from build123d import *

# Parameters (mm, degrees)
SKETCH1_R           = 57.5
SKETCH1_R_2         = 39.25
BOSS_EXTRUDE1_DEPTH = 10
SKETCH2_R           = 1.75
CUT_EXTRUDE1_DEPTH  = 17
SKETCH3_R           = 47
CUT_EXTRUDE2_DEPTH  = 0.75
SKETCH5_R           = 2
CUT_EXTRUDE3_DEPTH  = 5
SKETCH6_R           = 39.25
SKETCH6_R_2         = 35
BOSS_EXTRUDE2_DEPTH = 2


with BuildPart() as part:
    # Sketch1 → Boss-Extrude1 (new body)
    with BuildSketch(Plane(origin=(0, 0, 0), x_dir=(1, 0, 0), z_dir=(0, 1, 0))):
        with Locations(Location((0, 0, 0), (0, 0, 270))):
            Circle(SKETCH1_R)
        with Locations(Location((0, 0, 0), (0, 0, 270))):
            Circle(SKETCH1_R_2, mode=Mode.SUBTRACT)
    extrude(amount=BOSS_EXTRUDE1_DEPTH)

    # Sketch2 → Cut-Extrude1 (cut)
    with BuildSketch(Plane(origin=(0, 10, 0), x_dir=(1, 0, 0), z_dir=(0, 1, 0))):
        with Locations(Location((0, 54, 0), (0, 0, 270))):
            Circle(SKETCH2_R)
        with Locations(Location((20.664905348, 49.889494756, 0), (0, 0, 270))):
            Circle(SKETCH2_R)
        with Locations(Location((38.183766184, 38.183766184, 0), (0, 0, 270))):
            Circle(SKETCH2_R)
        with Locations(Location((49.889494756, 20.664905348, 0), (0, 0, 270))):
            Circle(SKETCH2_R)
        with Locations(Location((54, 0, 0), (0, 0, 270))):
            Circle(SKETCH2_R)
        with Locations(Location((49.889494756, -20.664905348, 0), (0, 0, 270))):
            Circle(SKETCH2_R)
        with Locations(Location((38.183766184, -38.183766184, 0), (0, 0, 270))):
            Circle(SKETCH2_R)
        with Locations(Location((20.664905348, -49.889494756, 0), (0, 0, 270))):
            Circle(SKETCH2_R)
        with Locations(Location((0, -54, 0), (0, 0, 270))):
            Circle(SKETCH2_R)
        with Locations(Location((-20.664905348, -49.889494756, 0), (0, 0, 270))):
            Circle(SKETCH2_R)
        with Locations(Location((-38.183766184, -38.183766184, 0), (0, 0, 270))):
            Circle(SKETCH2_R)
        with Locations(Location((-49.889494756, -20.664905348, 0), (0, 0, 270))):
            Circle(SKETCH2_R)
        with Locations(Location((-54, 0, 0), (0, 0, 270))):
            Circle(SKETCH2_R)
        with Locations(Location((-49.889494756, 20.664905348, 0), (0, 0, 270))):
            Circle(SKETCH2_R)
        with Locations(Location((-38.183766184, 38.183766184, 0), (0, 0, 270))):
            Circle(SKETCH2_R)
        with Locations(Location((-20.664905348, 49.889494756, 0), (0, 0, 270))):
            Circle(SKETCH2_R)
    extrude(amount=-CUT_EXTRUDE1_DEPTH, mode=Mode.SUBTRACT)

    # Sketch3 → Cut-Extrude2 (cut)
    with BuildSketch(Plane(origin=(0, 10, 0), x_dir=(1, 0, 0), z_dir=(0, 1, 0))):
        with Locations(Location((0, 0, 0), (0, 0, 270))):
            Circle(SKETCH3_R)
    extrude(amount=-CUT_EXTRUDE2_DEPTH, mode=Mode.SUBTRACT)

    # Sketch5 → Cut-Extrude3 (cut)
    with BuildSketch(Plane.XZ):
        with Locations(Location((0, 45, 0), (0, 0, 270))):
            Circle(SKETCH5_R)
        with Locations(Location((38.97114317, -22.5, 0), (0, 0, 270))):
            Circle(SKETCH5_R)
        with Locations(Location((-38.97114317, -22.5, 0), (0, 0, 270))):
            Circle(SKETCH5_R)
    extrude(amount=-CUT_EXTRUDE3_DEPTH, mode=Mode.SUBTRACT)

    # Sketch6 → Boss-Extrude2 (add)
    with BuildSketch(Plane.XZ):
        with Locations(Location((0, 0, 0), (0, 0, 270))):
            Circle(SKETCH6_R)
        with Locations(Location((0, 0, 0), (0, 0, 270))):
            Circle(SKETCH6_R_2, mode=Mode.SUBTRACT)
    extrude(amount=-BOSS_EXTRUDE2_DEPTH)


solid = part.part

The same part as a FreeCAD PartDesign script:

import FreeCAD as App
import Part
import Sketcher

V = App.Vector

doc = App.newDocument("Part")
body = doc.addObject("PartDesign::Body", "Body")

sketch1 = body.newObject("Sketcher::SketchObject", "Sketch")
sketch1.AttachmentSupport = (doc.getObject("XZ_Plane"), [""])
sketch1.MapMode = "FlatFace"
sketch1.addGeometry([
    Part.Circle(V(0, 0, 0), V(0, 0, 1), 57.5),
    Part.Circle(V(0, 0, 0), V(0, 0, 1), 39.25),
], False)
sketch1.addConstraint([
    Sketcher.Constraint("Coincident", 0, 3, -1, 1),
    Sketcher.Constraint("Coincident", 1, 3, -1, 1),
    Sketcher.Constraint("Diameter", 0, 115.0),
    Sketcher.Constraint("Diameter", 1, 78.5),
])
pad1 = body.newObject("PartDesign::Pad", "Pad")
pad1.Profile = sketch1
pad1.Length = 10
pad1.Reversed = True

sketch2 = body.newObject("Sketcher::SketchObject", "Sketch001")
sketch2.AttachmentSupport = (doc.getObject("XZ_Plane"), [""])
sketch2.MapMode = "FlatFace"
sketch2.AttachmentOffset = App.Placement(V(0, 0, -10), App.Rotation())
sketch2.addGeometry([
    Part.Circle(V(0, -54, 0), V(0, 0, 1), 1.75),
    Part.Circle(V(20.664905, -49.889495, 0), V(0, 0, 1), 1.75),
    Part.Circle(V(38.183766, -38.183766, 0), V(0, 0, 1), 1.75),
    Part.Circle(V(49.889495, -20.664905, 0), V(0, 0, 1), 1.75),
    Part.Circle(V(54, 0, 0), V(0, 0, 1), 1.75),
    Part.Circle(V(49.889495, 20.664905, 0), V(0, 0, 1), 1.75),
    Part.Circle(V(38.183766, 38.183766, 0), V(0, 0, 1), 1.75),
    Part.Circle(V(20.664905, 49.889495, 0), V(0, 0, 1), 1.75),
    Part.Circle(V(0, 54, 0), V(0, 0, 1), 1.75),
    Part.Circle(V(-20.664905, 49.889495, 0), V(0, 0, 1), 1.75),
    Part.Circle(V(-38.183766, 38.183766, 0), V(0, 0, 1), 1.75),
    Part.Circle(V(-49.889495, 20.664905, 0), V(0, 0, 1), 1.75),
    Part.Circle(V(-54, 0, 0), V(0, 0, 1), 1.75),
    Part.Circle(V(-49.889495, -20.664905, 0), V(0, 0, 1), 1.75),
    Part.Circle(V(-38.183766, -38.183766, 0), V(0, 0, 1), 1.75),
    Part.Circle(V(-20.664905, -49.889495, 0), V(0, 0, 1), 1.75),
], False)
sketch2.addConstraint([
    Sketcher.Constraint("Equal", 0, 1),
    Sketcher.Constraint("Equal", 1, 2),
    Sketcher.Constraint("Equal", 2, 3),
    Sketcher.Constraint("Equal", 3, 4),
    Sketcher.Constraint("Equal", 4, 5),
    Sketcher.Constraint("Equal", 5, 6),
    Sketcher.Constraint("Equal", 6, 7),
    Sketcher.Constraint("Equal", 7, 8),
    Sketcher.Constraint("Equal", 8, 9),
    Sketcher.Constraint("Equal", 9, 10),
    Sketcher.Constraint("Equal", 10, 11),
    Sketcher.Constraint("Equal", 11, 12),
    Sketcher.Constraint("Equal", 12, 13),
    Sketcher.Constraint("Equal", 13, 14),
    Sketcher.Constraint("Equal", 14, 15),
    Sketcher.Constraint("Symmetric", 0, 3, 8, 3, -1, 1),
    Sketcher.Constraint("Symmetric", 1, 3, 9, 3, -1, 1),
    Sketcher.Constraint("Symmetric", 2, 3, 10, 3, -1, 1),
    Sketcher.Constraint("Symmetric", 3, 3, 11, 3, -1, 1),
    Sketcher.Constraint("Symmetric", 4, 3, 12, 3, -1, 1),
    Sketcher.Constraint("Symmetric", 5, 3, 13, 3, -1, 1),
    Sketcher.Constraint("Symmetric", 6, 3, 14, 3, -1, 1),
    Sketcher.Constraint("Symmetric", 7, 3, 15, 3, -1, 1),
    Sketcher.Constraint("Symmetric", 7, 3, 9, 3, -2),
    Sketcher.Constraint("Symmetric", 6, 3, 10, 3, -2),
    Sketcher.Constraint("Symmetric", 5, 3, 11, 3, -2),
    Sketcher.Constraint("PointOnObject", 0, 3, -2),
    Sketcher.Constraint("PointOnObject", 4, 3, -1),
    Sketcher.Constraint("Diameter", 0, 3.5),
    Sketcher.Constraint("DistanceY", 0, 3, -1, 1, 54.0),
    Sketcher.Constraint("DistanceX", -1, 1, 4, 3, 54.0),
    Sketcher.Constraint("DistanceY", 1, 3, 5, 3, 70.5544),
    Sketcher.Constraint("DistanceX", 9, 3, 5, 3, 70.5544),
    Sketcher.Constraint("DistanceX", 1, 3, 2, 3, 17.518861),
    Sketcher.Constraint("DistanceY", 1, 3, 2, 3, 11.705729),
    Sketcher.Constraint("DistanceX", 2, 3, 3, 3, 11.705729),
    Sketcher.Constraint("DistanceY", 2, 3, 3, 3, 17.518861),
])
pocket1 = body.newObject("PartDesign::Pocket", "Pocket")
pocket1.Profile = sketch2
pocket1.Length = 17
pocket1.Reversed = True

sketch3 = body.newObject("Sketcher::SketchObject", "Sketch002")
sketch3.AttachmentSupport = (doc.getObject("XZ_Plane"), [""])
sketch3.MapMode = "FlatFace"
sketch3.AttachmentOffset = App.Placement(V(0, 0, -10), App.Rotation())
sketch3.addGeometry(Part.Circle(V(0, 0, 0), V(0, 0, 1), 47), False)
sketch3.addConstraint([
    Sketcher.Constraint("Coincident", 0, 3, -1, 1),
    Sketcher.Constraint("Diameter", 0, 94.0),
])
pocket2 = body.newObject("PartDesign::Pocket", "Pocket001")
pocket2.Profile = sketch3
pocket2.Length = 0.75
pocket2.Reversed = True

sketch4 = body.newObject("Sketcher::SketchObject", "Sketch003")
sketch4.AttachmentSupport = (doc.getObject("XZ_Plane"), [""])
sketch4.MapMode = "FlatFace"
sketch4.addGeometry([
    Part.Circle(V(0, 45, 0), V(0, 0, 1), 2),
    Part.Circle(V(38.971143, -22.5, 0), V(0, 0, 1), 2),
    Part.Circle(V(-38.971143, -22.5, 0), V(0, 0, 1), 2),
], False)
sketch4.addConstraint([
    Sketcher.Constraint("Equal", 0, 1),
    Sketcher.Constraint("Equal", 1, 2),
    Sketcher.Constraint("Symmetric", 1, 3, 2, 3, -2),
    Sketcher.Constraint("PointOnObject", 0, 3, -2),
    Sketcher.Constraint("Diameter", 0, 4.0),
    Sketcher.Constraint("DistanceY", -1, 1, 0, 3, 45.0),
    Sketcher.Constraint("DistanceY", 1, 3, -1, 1, 22.5),
    Sketcher.Constraint("DistanceX", -1, 1, 1, 3, 38.971143),
])
pocket3 = body.newObject("PartDesign::Pocket", "Pocket002")
pocket3.Profile = sketch4
pocket3.Length = 5

sketch5 = body.newObject("Sketcher::SketchObject", "Sketch004")
sketch5.AttachmentSupport = (doc.getObject("XZ_Plane"), [""])
sketch5.MapMode = "FlatFace"
sketch5.addGeometry([
    Part.Circle(V(0, 0, 0), V(0, 0, 1), 39.25),
    Part.Circle(V(0, 0, 0), V(0, 0, 1), 35),
], False)
sketch5.addConstraint([
    Sketcher.Constraint("Coincident", 0, 3, -1, 1),
    Sketcher.Constraint("Coincident", 1, 3, -1, 1),
    Sketcher.Constraint("Diameter", 1, 70.0),
    Sketcher.Constraint("Diameter", 0, 78.5),
])
pad2 = body.newObject("PartDesign::Pad", "Pad001")
pad2.Profile = sketch5
pad2.Length = 2
pad2.Reversed = True

doc.recompute()
